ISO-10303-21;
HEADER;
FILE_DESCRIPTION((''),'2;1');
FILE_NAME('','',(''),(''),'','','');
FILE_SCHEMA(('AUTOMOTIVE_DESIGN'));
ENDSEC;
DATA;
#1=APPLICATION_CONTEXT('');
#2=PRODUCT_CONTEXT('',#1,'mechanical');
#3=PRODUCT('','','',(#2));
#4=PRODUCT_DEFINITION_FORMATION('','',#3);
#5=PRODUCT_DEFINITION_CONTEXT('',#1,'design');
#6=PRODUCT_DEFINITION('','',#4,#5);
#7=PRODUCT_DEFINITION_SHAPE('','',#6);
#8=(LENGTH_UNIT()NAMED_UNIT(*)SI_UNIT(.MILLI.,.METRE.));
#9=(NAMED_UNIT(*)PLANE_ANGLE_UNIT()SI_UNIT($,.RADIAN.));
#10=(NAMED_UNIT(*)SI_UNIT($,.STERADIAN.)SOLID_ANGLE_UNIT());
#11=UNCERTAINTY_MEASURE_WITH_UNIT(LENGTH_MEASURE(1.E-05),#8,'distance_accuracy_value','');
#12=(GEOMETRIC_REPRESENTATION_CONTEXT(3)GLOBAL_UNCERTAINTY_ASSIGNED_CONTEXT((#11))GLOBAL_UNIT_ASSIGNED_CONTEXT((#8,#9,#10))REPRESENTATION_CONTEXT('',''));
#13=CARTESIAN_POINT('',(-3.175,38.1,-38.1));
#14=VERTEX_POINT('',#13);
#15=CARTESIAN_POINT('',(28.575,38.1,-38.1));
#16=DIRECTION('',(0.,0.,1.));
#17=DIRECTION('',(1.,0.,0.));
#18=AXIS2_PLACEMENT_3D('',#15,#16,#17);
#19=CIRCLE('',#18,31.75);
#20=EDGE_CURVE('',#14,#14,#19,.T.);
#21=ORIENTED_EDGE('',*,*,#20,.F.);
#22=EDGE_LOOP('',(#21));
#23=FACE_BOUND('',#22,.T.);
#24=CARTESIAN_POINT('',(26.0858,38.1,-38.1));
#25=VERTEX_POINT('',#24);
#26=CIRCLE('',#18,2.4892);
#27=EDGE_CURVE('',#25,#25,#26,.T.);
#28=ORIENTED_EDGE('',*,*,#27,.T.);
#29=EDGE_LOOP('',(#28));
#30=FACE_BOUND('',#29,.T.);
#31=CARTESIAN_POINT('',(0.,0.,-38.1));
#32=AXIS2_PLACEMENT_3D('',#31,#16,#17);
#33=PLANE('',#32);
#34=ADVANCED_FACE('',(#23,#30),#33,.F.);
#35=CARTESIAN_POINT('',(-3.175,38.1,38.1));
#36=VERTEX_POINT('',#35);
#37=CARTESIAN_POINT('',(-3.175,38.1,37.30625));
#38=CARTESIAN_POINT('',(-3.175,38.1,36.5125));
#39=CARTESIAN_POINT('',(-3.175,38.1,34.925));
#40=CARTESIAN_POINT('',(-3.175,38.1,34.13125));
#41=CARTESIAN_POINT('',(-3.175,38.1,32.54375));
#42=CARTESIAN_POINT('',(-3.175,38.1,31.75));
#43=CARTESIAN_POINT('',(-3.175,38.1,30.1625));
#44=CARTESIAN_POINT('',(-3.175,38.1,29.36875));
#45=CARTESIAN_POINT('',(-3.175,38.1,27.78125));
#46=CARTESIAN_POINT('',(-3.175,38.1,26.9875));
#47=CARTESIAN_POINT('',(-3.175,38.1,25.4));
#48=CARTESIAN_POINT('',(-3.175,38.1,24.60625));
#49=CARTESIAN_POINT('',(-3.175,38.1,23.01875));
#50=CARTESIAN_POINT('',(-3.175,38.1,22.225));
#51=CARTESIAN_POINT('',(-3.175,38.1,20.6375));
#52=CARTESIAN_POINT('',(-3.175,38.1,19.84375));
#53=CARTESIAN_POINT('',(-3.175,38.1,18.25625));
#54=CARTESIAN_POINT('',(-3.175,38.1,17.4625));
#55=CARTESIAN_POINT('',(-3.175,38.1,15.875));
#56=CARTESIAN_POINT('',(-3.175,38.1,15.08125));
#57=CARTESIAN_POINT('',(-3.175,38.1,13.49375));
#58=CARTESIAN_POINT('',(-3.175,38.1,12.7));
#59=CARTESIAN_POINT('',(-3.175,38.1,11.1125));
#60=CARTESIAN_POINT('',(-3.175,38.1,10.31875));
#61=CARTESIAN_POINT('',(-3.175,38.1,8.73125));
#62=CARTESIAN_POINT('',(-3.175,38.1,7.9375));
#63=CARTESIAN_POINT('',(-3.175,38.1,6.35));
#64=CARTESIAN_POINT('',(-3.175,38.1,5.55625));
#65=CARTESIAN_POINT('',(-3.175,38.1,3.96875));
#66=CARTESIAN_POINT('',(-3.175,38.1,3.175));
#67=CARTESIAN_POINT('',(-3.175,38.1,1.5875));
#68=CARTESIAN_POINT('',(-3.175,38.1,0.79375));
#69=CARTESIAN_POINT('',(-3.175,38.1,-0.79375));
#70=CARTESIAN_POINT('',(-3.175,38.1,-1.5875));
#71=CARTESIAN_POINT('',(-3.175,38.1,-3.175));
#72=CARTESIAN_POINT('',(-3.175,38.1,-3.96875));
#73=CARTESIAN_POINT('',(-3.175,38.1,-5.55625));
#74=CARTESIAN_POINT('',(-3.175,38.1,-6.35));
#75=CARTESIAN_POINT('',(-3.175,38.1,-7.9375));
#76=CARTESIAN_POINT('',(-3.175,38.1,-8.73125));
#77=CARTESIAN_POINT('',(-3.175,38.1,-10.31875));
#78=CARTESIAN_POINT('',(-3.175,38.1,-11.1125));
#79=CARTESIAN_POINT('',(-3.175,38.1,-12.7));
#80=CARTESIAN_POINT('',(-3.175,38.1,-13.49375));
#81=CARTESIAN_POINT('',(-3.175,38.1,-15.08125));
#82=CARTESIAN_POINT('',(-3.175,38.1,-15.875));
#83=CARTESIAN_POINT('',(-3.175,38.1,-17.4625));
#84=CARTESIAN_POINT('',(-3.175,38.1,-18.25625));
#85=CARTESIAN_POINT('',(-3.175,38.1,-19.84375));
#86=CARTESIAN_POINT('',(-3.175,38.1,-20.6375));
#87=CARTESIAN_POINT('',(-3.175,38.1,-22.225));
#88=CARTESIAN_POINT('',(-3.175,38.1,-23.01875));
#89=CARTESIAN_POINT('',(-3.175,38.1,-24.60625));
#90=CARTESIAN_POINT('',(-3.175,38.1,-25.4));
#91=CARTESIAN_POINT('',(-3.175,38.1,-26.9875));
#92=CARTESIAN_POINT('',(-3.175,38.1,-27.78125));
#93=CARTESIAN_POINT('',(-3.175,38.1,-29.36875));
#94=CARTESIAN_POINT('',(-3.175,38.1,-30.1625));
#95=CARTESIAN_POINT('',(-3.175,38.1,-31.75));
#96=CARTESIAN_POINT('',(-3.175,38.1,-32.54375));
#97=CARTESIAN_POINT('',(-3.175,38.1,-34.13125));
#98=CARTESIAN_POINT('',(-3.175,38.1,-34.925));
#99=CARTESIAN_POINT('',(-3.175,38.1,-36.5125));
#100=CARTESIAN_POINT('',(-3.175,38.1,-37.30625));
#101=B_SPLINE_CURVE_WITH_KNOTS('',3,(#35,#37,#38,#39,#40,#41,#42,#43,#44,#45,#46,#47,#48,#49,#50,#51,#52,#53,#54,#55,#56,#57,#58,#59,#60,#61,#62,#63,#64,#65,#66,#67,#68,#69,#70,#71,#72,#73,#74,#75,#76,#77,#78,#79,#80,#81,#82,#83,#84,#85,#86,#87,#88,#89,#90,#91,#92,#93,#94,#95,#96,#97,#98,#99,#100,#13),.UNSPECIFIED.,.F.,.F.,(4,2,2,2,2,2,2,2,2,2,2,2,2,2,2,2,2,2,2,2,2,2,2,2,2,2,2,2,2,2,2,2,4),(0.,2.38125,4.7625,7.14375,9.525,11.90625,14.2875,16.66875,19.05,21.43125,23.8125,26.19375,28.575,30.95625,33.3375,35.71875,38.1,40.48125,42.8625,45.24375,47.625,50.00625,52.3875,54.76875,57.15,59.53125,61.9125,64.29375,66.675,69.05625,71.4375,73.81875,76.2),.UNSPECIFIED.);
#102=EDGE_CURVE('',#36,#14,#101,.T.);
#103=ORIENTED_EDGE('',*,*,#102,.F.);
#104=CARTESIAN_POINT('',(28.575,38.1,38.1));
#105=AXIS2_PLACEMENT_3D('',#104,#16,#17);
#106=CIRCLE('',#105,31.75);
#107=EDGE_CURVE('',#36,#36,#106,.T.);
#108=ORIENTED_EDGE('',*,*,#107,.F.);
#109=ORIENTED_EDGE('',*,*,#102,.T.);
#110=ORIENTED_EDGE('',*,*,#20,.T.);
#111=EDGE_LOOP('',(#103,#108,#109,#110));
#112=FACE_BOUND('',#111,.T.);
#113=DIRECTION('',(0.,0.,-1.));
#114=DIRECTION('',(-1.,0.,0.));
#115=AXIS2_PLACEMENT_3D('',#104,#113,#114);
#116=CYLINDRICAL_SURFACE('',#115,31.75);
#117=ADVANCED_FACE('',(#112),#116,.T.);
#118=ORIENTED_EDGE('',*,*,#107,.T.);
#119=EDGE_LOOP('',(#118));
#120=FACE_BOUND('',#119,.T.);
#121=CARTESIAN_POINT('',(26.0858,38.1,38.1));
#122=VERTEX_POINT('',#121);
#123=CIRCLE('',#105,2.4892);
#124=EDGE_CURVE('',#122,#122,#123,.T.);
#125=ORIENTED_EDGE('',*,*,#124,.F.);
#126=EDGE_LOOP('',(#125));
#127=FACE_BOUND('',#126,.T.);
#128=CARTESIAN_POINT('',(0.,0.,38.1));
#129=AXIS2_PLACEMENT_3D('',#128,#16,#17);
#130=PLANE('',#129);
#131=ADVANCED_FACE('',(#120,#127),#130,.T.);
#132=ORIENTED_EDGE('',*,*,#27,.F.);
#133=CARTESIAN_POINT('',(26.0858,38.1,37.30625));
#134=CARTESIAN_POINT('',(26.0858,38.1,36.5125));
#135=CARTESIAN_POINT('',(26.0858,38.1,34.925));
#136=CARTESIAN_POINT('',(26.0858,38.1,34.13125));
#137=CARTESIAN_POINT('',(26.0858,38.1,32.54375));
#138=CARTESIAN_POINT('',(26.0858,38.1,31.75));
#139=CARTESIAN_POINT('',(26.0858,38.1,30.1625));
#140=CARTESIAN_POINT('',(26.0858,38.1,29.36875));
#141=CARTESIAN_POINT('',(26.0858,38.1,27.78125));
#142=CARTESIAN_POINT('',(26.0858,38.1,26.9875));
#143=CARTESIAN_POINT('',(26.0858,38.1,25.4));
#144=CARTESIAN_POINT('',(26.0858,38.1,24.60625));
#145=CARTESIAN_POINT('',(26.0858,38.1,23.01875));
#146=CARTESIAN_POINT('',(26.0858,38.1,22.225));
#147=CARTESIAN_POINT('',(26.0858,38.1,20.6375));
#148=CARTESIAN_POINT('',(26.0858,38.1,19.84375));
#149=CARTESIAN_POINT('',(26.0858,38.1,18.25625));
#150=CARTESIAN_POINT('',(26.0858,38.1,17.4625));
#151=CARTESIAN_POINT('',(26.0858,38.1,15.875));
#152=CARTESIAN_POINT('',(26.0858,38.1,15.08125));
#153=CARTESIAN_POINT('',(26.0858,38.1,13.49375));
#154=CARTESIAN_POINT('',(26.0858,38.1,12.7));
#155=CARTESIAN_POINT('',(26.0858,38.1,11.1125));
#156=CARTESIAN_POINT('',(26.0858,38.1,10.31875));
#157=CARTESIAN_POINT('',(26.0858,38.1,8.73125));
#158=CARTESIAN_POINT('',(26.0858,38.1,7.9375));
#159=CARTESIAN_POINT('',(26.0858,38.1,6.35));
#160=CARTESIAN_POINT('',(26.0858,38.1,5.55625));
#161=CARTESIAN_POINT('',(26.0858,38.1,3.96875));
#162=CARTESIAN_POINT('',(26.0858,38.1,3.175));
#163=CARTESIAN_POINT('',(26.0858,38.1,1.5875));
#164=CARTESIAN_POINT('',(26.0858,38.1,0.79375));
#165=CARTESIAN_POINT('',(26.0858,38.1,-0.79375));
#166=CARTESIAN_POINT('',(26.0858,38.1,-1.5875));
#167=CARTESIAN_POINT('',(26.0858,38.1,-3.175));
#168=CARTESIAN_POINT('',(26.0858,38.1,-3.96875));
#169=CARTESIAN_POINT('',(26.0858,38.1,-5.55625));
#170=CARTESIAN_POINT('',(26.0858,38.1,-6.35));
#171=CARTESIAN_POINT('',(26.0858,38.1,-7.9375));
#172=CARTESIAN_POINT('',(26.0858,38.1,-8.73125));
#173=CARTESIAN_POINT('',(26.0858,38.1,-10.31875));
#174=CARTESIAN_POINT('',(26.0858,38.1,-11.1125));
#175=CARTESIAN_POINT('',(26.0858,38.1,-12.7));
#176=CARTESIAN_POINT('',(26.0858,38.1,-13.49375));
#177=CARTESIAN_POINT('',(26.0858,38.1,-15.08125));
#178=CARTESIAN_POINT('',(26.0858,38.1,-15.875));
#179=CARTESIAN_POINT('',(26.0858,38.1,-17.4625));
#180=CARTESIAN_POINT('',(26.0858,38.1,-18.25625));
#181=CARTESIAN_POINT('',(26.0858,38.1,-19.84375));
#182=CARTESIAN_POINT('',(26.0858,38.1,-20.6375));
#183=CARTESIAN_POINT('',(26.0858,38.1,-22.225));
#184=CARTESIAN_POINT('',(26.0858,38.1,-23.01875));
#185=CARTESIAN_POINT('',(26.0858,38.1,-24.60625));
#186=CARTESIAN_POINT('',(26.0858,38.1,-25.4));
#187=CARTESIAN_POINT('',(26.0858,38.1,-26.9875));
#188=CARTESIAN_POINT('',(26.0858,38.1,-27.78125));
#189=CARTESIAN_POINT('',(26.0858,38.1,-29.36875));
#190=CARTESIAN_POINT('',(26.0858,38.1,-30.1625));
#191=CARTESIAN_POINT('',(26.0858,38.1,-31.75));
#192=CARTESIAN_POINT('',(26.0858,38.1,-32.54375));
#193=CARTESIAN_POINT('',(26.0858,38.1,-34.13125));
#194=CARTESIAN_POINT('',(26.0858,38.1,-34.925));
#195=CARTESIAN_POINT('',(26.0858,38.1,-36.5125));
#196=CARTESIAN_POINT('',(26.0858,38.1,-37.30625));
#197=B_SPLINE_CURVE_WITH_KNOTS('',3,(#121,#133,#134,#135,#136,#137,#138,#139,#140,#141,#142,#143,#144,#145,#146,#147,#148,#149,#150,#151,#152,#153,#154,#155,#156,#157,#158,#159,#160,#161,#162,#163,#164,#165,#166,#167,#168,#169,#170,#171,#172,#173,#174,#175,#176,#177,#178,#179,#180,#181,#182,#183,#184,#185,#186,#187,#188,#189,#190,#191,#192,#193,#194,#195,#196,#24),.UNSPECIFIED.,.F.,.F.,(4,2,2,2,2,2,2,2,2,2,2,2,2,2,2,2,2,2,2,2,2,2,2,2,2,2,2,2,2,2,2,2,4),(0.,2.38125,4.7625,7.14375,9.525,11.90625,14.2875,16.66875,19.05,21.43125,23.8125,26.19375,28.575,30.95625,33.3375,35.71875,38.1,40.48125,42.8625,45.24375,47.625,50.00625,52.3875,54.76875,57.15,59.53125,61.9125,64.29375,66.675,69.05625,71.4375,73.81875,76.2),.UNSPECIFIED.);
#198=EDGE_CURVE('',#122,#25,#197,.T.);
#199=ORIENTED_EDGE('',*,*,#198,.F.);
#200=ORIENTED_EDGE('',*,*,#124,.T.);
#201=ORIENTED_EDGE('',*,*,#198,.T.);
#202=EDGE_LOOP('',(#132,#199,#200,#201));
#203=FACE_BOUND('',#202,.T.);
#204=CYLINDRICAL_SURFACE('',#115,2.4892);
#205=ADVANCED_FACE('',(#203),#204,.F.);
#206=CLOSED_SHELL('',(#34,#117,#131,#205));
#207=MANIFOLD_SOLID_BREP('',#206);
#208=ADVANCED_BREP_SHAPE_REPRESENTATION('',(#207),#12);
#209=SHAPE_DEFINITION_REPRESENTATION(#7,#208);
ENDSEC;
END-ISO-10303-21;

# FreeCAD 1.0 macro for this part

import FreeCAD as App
import Part
import Sketcher
Q = App.Units.Quantity

doc = App.newDocument("Part")
body = doc.addObject("PartDesign::Body", "Body")

# Sketch on XY plane
sketch1 = body.newObject("Sketcher::SketchObject", "Sketch")
sketch1.AttachmentSupport = (doc.getObject("XY_Plane"), [""])
sketch1.MapMode = "FlatFace"
sketch1.addGeometry([
    Part.Circle(App.Vector(28.6, 38.1, 0), App.Vector(0, 0, 1), 31.8),
    Part.Circle(App.Vector(28.6, 38.1, 0), App.Vector(0, 0, 1), 2.5),
], False)
sketch1.addConstraint([
    Sketcher.Constraint("Coincident", 1, 3, 0, 3),
    Sketcher.Constraint("Diameter", 0, Q("2.5 in")),
    Sketcher.Constraint("Diameter", 1, Q("0.196 in")),
    Sketcher.Constraint("DistanceY", -1, 1, 0, 3, Q("1.5 in")),
    Sketcher.Constraint("DistanceX", -1, 1, 0, 3, Q("1.125 in")),
])
pad1 = body.newObject("PartDesign::Pad", "Pad")
pad1.Profile = sketch1
pad1.Length = Q("3 in")
pad1.Midplane = True

doc.recompute()
